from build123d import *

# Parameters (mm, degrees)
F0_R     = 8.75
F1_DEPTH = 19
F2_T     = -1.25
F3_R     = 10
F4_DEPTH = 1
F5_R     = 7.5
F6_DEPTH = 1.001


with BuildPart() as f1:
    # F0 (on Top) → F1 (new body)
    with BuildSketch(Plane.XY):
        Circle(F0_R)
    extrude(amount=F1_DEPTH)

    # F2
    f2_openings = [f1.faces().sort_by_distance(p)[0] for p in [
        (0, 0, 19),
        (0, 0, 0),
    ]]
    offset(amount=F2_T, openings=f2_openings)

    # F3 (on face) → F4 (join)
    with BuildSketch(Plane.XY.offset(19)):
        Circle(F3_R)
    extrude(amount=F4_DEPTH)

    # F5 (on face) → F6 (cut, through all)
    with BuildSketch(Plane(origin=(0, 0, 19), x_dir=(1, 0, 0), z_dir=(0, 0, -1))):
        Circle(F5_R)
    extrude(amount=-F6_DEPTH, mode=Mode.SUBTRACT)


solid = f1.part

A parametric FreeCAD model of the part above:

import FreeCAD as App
import Part
import Sketcher
from FreeCAD import Vector


def faces_at(feature, points):
    """Names of the faces that lie closest to the given points."""
    faces = feature.Shape.Faces
    near = lambda p: min(range(len(faces)), key=lambda i: faces[i].distToShape(Part.Vertex(*p))[0])
    return sorted({f"Face{near(p) + 1}" for p in points})

doc = App.newDocument("Part")
body = doc.addObject("PartDesign::Body", "Body")

sketch1 = body.newObject("Sketcher::SketchObject", "Sketch")
sketch1.AttachmentSupport = (doc.getObject("XY_Plane"), [""])
sketch1.MapMode = "FlatFace"
sketch1.addGeometry(Part.Circle(Vector(0, 0, 0), Vector(0, 0, 1), 8.75), False)
sketch1.addConstraint([
    Sketcher.Constraint("Coincident", 0, 3, -1, 1),
    Sketcher.Constraint("Diameter", 0, 17.5),
])
pad1 = body.newObject("PartDesign::Pad", "Pad")
pad1.Profile = sketch1
pad1.Length = 19
doc.recompute()

thickness = body.newObject("PartDesign::Thickness", "Thickness")
thickness.Base = (pad1, faces_at(pad1, [(0, 0, 19), (0, 0, 0)]))
thickness.Value = 1.25
thickness.Reversed = True
thickness.Join = "Arc"

sketch2 = body.newObject("Sketcher::SketchObject", "Sketch001")
sketch2.AttachmentSupport = (doc.getObject("XY_Plane"), [""])
sketch2.MapMode = "FlatFace"
sketch2.AttachmentOffset = App.Placement(Vector(0, 0, 19), App.Rotation())
sketch2.addGeometry(Part.Circle(Vector(0, 0, 0), Vector(0, 0, 1), 10), False)
sketch2.addConstraint([
    Sketcher.Constraint("Coincident", 0, 3, -1, 1),
    Sketcher.Constraint("Diameter", 0, 20.0),
])
pad2 = body.newObject("PartDesign::Pad", "Pad001")
pad2.Profile = sketch2
pad2.Length = 1

sketch3 = body.newObject("Sketcher::SketchObject", "Sketch002")
sketch3.AttachmentSupport = (doc.getObject("XY_Plane"), [""])
sketch3.MapMode = "FlatFace"
sketch3.AttachmentOffset = App.Placement(Vector(0, 0, 19), App.Rotation())
sketch3.addGeometry(Part.Circle(Vector(0, 0, 0), Vector(0, 0, 1), 7.5), False)
sketch3.addConstraint([
    Sketcher.Constraint("Coincident", 0, 3, -1, 1),
    Sketcher.Constraint("Diameter", 0, 15.0),
])
pocket1 = body.newObject("PartDesign::Pocket", "Pocket")
pocket1.Profile = sketch3
pocket1.Type = "ThroughAll"
pocket1.Reversed = True

doc.recompute()
